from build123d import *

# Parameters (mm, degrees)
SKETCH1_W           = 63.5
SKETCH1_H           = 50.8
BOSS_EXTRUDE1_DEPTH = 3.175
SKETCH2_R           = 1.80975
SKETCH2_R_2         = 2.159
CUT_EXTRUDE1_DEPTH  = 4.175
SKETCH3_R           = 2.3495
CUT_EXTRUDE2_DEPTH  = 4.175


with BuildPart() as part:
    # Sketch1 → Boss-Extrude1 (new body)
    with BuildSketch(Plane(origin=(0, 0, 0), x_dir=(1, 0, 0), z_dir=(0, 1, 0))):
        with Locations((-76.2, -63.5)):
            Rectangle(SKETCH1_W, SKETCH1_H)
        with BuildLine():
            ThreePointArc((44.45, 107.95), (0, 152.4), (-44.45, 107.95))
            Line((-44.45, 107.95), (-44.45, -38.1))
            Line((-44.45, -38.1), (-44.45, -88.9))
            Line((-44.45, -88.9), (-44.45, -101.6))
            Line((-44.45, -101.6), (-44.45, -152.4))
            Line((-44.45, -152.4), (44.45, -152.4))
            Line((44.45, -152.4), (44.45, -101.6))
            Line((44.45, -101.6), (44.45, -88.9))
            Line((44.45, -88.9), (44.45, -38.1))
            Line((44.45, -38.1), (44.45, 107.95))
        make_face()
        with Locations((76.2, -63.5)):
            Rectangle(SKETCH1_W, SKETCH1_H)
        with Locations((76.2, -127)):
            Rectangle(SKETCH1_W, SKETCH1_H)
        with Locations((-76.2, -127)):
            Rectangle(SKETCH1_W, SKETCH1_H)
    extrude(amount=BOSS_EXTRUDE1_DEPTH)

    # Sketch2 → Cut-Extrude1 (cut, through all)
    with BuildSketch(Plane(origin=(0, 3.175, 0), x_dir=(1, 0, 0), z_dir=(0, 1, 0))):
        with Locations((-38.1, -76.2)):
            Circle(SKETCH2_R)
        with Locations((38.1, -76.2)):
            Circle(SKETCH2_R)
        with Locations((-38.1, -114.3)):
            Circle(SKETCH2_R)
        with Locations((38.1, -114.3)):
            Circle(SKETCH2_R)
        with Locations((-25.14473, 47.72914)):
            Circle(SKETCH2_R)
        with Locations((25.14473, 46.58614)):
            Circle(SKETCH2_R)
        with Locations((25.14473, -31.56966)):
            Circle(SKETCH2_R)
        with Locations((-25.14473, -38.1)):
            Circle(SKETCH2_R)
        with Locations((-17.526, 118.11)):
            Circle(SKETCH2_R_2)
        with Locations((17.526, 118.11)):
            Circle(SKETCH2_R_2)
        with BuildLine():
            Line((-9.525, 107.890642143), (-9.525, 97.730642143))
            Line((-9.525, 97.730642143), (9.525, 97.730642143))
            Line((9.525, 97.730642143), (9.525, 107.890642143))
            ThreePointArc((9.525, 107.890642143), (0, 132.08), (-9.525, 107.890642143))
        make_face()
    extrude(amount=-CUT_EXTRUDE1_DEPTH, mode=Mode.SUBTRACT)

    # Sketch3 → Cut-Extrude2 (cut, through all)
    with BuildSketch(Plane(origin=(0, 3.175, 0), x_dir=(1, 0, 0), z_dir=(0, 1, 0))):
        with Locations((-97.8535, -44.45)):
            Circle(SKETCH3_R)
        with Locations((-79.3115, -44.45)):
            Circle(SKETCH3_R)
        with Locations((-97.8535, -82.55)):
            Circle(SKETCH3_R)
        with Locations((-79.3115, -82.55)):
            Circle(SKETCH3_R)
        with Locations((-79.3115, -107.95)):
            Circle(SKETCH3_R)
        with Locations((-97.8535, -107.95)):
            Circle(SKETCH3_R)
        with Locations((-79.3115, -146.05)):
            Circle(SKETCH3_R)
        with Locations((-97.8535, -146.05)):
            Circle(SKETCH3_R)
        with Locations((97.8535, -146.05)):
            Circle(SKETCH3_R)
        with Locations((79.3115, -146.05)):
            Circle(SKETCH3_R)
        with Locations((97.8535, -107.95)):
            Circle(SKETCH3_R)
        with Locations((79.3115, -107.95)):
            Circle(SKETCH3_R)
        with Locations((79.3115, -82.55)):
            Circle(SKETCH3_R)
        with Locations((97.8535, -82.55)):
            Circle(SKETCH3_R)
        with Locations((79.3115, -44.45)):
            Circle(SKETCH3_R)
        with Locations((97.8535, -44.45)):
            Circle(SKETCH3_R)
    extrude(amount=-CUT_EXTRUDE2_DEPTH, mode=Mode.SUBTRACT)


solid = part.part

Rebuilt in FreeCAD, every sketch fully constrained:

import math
import FreeCAD as App
import Part
import Sketcher
from FreeCAD import Vector
Q = App.Units.Quantity

doc = App.newDocument("Part")
body = doc.addObject("PartDesign::Body", "Body")

sketch1 = body.newObject("Sketcher::SketchObject", "Sketch")
sketch1.AttachmentSupport = (doc.getObject("XZ_Plane"), [""])
sketch1.MapMode = "FlatFace"
sketch1.addGeometry(Part.LineSegment(Vector(-108, 38, 0), Vector(-108, 89, 0)), False)
sketch1.addGeometry(Part.LineSegment(Vector(-108, 89, 0), Vector(-44, 89, 0)), False)
sketch1.addGeometry(Part.LineSegment(Vector(-44, 89, 0), Vector(-44, 102, 0)), False)
sketch1.addGeometry(Part.LineSegment(Vector(-44, 102, 0), Vector(-108, 102, 0)), False)
sketch1.addGeometry(Part.LineSegment(Vector(-108, 102, 0), Vector(-108, 152, 0)), False)
sketch1.addGeometry(Part.LineSegment(Vector(-108, 152, 0), Vector(108, 152, 0)), False)
sketch1.addGeometry(Part.LineSegment(Vector(108, 152, 0), Vector(108, 102, 0)), False)
sketch1.addGeometry(Part.LineSegment(Vector(108, 102, 0), Vector(44, 102, 0)), False)
sketch1.addGeometry(Part.LineSegment(Vector(44, 102, 0), Vector(44, 89, 0)), False)
sketch1.addGeometry(Part.LineSegment(Vector(44, 89, 0), Vector(108, 89, 0)), False)
sketch1.addGeometry(Part.LineSegment(Vector(108, 89, 0), Vector(108, 38, 0)), False)
sketch1.addGeometry(Part.LineSegment(Vector(108, 38, 0), Vector(44, 38, 0)), False)
sketch1.addGeometry(Part.LineSegment(Vector(44, 38, 0), Vector(44, -108, 0)), False)
sketch1.addGeometry(Part.ArcOfCircle(Part.Circle(Vector(0, -108, 0), Vector(0, 0, 1), 44), math.radians(180), math.radians(360)), False)
sketch1.addGeometry(Part.LineSegment(Vector(-44, -108, 0), Vector(-44, 38, 0)), False)
sketch1.addGeometry(Part.LineSegment(Vector(-44, 38, 0), Vector(-108, 38, 0)), False)
sketch1.addConstraint(Sketcher.Constraint("Coincident", 0, 2, 1, 1))
sketch1.addConstraint(Sketcher.Constraint("Coincident", 1, 2, 2, 1))
sketch1.addConstraint(Sketcher.Constraint("Coincident", 2, 2, 3, 1))
sketch1.addConstraint(Sketcher.Constraint("Coincident", 3, 2, 4, 1))
sketch1.addConstraint(Sketcher.Constraint("Coincident", 4, 2, 5, 1))
sketch1.addConstraint(Sketcher.Constraint("Coincident", 5, 2, 6, 1))
sketch1.addConstraint(Sketcher.Constraint("Coincident", 6, 2, 7, 1))
sketch1.addConstraint(Sketcher.Constraint("Coincident", 7, 2, 8, 1))
sketch1.addConstraint(Sketcher.Constraint("Coincident", 8, 2, 9, 1))
sketch1.addConstraint(Sketcher.Constraint("Coincident", 9, 2, 10, 1))
sketch1.addConstraint(Sketcher.Constraint("Coincident", 10, 2, 11, 1))
sketch1.addConstraint(Sketcher.Constraint("Coincident", 11, 2, 12, 1))
sketch1.addConstraint(Sketcher.Constraint("Tangent", 12, 2, 13, 2))
sketch1.addConstraint(Sketcher.Constraint("Tangent", 13, 1, 14, 1))
sketch1.addConstraint(Sketcher.Constraint("Coincident", 14, 2, 15, 1))
sketch1.addConstraint(Sketcher.Constraint("Coincident", 15, 2, 0, 1))
sketch1.addConstraint(Sketcher.Constraint("Vertical", 0))
sketch1.addConstraint(Sketcher.Constraint("Horizontal", 1))
sketch1.addConstraint(Sketcher.Constraint("Vertical", 2))
sketch1.addConstraint(Sketcher.Constraint("Horizontal", 3))
sketch1.addConstraint(Sketcher.Constraint("Vertical", 4))
sketch1.addConstraint(Sketcher.Constraint("Horizontal", 5))
sketch1.addConstraint(Sketcher.Constraint("Vertical", 6))
sketch1.addConstraint(Sketcher.Constraint("Horizontal", 7))
sketch1.addConstraint(Sketcher.Constraint("Vertical", 8))
sketch1.addConstraint(Sketcher.Constraint("Horizontal", 9))
sketch1.addConstraint(Sketcher.Constraint("Vertical", 10))
sketch1.addConstraint(Sketcher.Constraint("Horizontal", 11))
sketch1.addConstraint(Sketcher.Constraint("Vertical", 12))
sketch1.addConstraint(Sketcher.Constraint("Vertical", 14))
sketch1.addConstraint(Sketcher.Constraint("Horizontal", 15))
sketch1.addConstraint(Sketcher.Constraint("Symmetric", 3, 2, 6, 2, -2))
sketch1.addConstraint(Sketcher.Constraint("Symmetric", 1, 2, 8, 2, -2))
sketch1.addConstraint(Sketcher.Constraint("Symmetric", 11, 2, 14, 2, -2))
sketch1.addConstraint(Sketcher.Constraint("Vertical", 0, 2, 3, 2))
sketch1.addConstraint(Sketcher.Constraint("Vertical", 6, 2, 9, 2))
sketch1.addConstraint(Sketcher.Constraint("Vertical", 8, 2, 11, 2))
sketch1.addConstraint(Sketcher.Constraint("Equal", 0, 4))
sketch1.addConstraint(Sketcher.Constraint("DistanceY", 0, 1, 0, 2, Q("2 in")))
sketch1.addConstraint(Sketcher.Constraint("Radius", 13, Q("1.75 in")))
sketch1.addConstraint(Sketcher.Constraint("DistanceX", 1, 1, 1, 2, Q("2.5 in")))
sketch1.addConstraint(Sketcher.Constraint("DistanceY", 2, 1, 2, 2, Q("0.5 in")))
sketch1.addConstraint(Sketcher.Constraint("DistanceY", -1, 1, 2, 2, Q("4 in")))
sketch1.addConstraint(Sketcher.Constraint("DistanceY", 12, 2, 12, 1, Q("5.75 in")))
pad1 = body.newObject("PartDesign::Pad", "Pad")
pad1.Profile = sketch1
pad1.Length = Q("0.125 in")
pad1.Reversed = True

sketch2 = body.newObject("Sketcher::SketchObject", "Sketch001")
sketch2.AttachmentSupport = (doc.getObject("XZ_Plane"), [""])
sketch2.MapMode = "FlatFace"
sketch2.AttachmentOffset = App.Placement(Vector(0, 0, -0.125 * 25.4), App.Rotation())
sketch2.addGeometry(Part.Circle(Vector(-38.1, 76.2, 0), Vector(0, 0, 1), 1.8), False)
sketch2.addGeometry(Part.Circle(Vector(38.1, 76.2, 0), Vector(0, 0, 1), 1.8), False)
sketch2.addGeometry(Part.Circle(Vector(-38.1, 114.3, 0), Vector(0, 0, 1), 1.8), False)
sketch2.addGeometry(Part.Circle(Vector(38.1, 114.3, 0), Vector(0, 0, 1), 1.8), False)
sketch2.addGeometry(Part.Circle(Vector(-25.1, -47.7, 0), Vector(0, 0, 1), 1.8), False)
sketch2.addGeometry(Part.Circle(Vector(25.1, -46.6, 0), Vector(0, 0, 1), 1.8), False)
sketch2.addGeometry(Part.Circle(Vector(25.1, 31.6, 0), Vector(0, 0, 1), 1.8), False)
sketch2.addGeometry(Part.Circle(Vector(-25.1, 38.1, 0), Vector(0, 0, 1), 1.8), False)
sketch2.addGeometry(Part.Circle(Vector(-17.5, -118.1, 0), Vector(0, 0, 1), 2.2), False)
sketch2.addGeometry(Part.Circle(Vector(17.5, -118.1, 0), Vector(0, 0, 1), 2.2), False)
sketch2.addGeometry(Part.LineSegment(Vector(-9.5, -107.9, 0), Vector(-9.5, -97.7, 0)), False)
sketch2.addGeometry(Part.LineSegment(Vector(-9.5, -97.7, 0), Vector(9.5, -97.7, 0)), False)
sketch2.addGeometry(Part.LineSegment(Vector(9.5, -97.7, 0), Vector(9.5, -107.9, 0)), False)
sketch2.addGeometry(Part.ArcOfCircle(Part.Circle(Vector(0, -118.1, 0), Vector(0, 0, 1), 14), math.radians(133), math.radians(407)), False)
sketch2.addConstraint(Sketcher.Constraint("Coincident", 10, 2, 11, 1))
sketch2.addConstraint(Sketcher.Constraint("Coincident", 11, 2, 12, 1))
sketch2.addConstraint(Sketcher.Constraint("Coincident", 12, 2, 13, 2))
sketch2.addConstraint(Sketcher.Constraint("Coincident", 13, 1, 10, 1))
sketch2.addConstraint(Sketcher.Constraint("Vertical", 10))
sketch2.addConstraint(Sketcher.Constraint("Horizontal", 11))
sketch2.addConstraint(Sketcher.Constraint("Vertical", 12))
sketch2.addConstraint(Sketcher.Constraint("Equal", 0, 1))
sketch2.addConstraint(Sketcher.Constraint("Equal", 1, 2))
sketch2.addConstraint(Sketcher.Constraint("Equal", 2, 3))
sketch2.addConstraint(Sketcher.Constraint("Equal", 3, 4))
sketch2.addConstraint(Sketcher.Constraint("Equal", 4, 5))
sketch2.addConstraint(Sketcher.Constraint("Equal", 5, 6))
sketch2.addConstraint(Sketcher.Constraint("Equal", 6, 7))
sketch2.addConstraint(Sketcher.Constraint("Equal", 8, 9))
sketch2.addConstraint(Sketcher.Constraint("Symmetric", 0, 3, 1, 3, -2))
sketch2.addConstraint(Sketcher.Constraint("Symmetric", 2, 3, 3, 3, -2))
sketch2.addConstraint(Sketcher.Constraint("Symmetric", 8, 3, 9, 3, -2))
sketch2.addConstraint(Sketcher.Constraint("Symmetric", 12, 2, 13, 1, -2))
sketch2.addConstraint(Sketcher.Constraint("Horizontal", 9, 3, 13, 3))
sketch2.addConstraint(Sketcher.Constraint("Vertical", 0, 3, 2, 3))
sketch2.addConstraint(Sketcher.Constraint("Vertical", 5, 3, 6, 3))
sketch2.addConstraint(Sketcher.Constraint("Vertical", 4, 3, 7, 3))
sketch2.addConstraint(Sketcher.Constraint("Diameter", 8, Q("0.17 in")))
sketch2.addConstraint(Sketcher.Constraint("Radius", 13, Q("0.55 in")))
sketch2.addConstraint(Sketcher.Constraint("DistanceY", 10, 1, 10, 2, Q("0.4 in")))
sketch2.addConstraint(Sketcher.Constraint("DistanceY", -1, 1, 0, 3, Q("3 in")))
sketch2.addConstraint(Sketcher.Constraint("DistanceX", 0, 3, 1, 3, Q("3 in")))
sketch2.addConstraint(Sketcher.Constraint("DistanceY", 7, 3, 2, 3, Q("3 in")))
sketch2.addConstraint(Sketcher.Constraint("Diameter", 0, Q("0.1425 in")))
sketch2.addConstraint(Sketcher.Constraint("DistanceX", 11, 1, 11, 2, Q("0.75 in")))
sketch2.addConstraint(Sketcher.Constraint("DistanceY", -1, 1, 2, 3, Q("4.5 in")))
sketch2.addConstraint(Sketcher.Constraint("DistanceX", 8, 3, -1, 1, Q("0.69 in")))
sketch2.addConstraint(Sketcher.Constraint("DistanceY", 8, 3, -1, 1, Q("4.65 in")))
sketch2.addConstraint(Sketcher.Constraint("DistanceY", 4, 3, 5, 3, Q("0.045 in")))
sketch2.addConstraint(Sketcher.Constraint("DistanceY", 5, 3, 6, 3, Q("3.077 in")))
sketch2.addConstraint(Sketcher.Constraint("DistanceY", 4, 3, -1, 1, Q("1.8791 in")))
sketch2.addConstraint(Sketcher.Constraint("DistanceX", 4, 3, 5, 3, Q("1.9799 in")))
sketch2.addConstraint(Sketcher.Constraint("DistanceX", 4, 3, -1, 1, Q("25.14473 mm")))
pocket1 = body.newObject("PartDesign::Pocket", "Pocket")
pocket1.Profile = sketch2
pocket1.Type = "ThroughAll"
pocket1.Reversed = True

sketch3 = body.newObject("Sketcher::SketchObject", "Sketch002")
sketch3.AttachmentSupport = (doc.getObject("XZ_Plane"), [""])
sketch3.MapMode = "FlatFace"
sketch3.AttachmentOffset = App.Placement(Vector(0, 0, -0.125 * 25.4), App.Rotation())
sketch3.addGeometry(Part.Circle(Vector(-97.9, 44.5, 0), Vector(0, 0, 1), 2.3), False)
sketch3.addGeometry(Part.Circle(Vector(-79.3, 44.5, 0), Vector(0, 0, 1), 2.3), False)
sketch3.addGeometry(Part.Circle(Vector(-97.9, 82.5, 0), Vector(0, 0, 1), 2.3), False)
sketch3.addGeometry(Part.Circle(Vector(-79.3, 82.5, 0), Vector(0, 0, 1), 2.3), False)
sketch3.addGeometry(Part.Circle(Vector(-79.3, 108, 0), Vector(0, 0, 1), 2.3), False)
sketch3.addGeometry(Part.Circle(Vector(-97.9, 108, 0), Vector(0, 0, 1), 2.3), False)
sketch3.addGeometry(Part.Circle(Vector(-79.3, 146.1, 0), Vector(0, 0, 1), 2.3), False)
sketch3.addGeometry(Part.Circle(Vector(-97.9, 146.1, 0), Vector(0, 0, 1), 2.3), False)
sketch3.addGeometry(Part.Circle(Vector(97.9, 146.1, 0), Vector(0, 0, 1), 2.3), False)
sketch3.addGeometry(Part.Circle(Vector(79.3, 146.1, 0), Vector(0, 0, 1), 2.3), False)
sketch3.addGeometry(Part.Circle(Vector(97.9, 108, 0), Vector(0, 0, 1), 2.3), False)
sketch3.addGeometry(Part.Circle(Vector(79.3, 108, 0), Vector(0, 0, 1), 2.3), False)
sketch3.addGeometry(Part.Circle(Vector(79.3, 82.5, 0), Vector(0, 0, 1), 2.3), False)
sketch3.addGeometry(Part.Circle(Vector(97.9, 82.5, 0), Vector(0, 0, 1), 2.3), False)
sketch3.addGeometry(Part.Circle(Vector(79.3, 44.5, 0), Vector(0, 0, 1), 2.3), False)
sketch3.addGeometry(Part.Circle(Vector(97.9, 44.5, 0), Vector(0, 0, 1), 2.3), False)
sketch3.addConstraint(Sketcher.Constraint("Equal", 0, 1))
sketch3.addConstraint(Sketcher.Constraint("Equal", 1, 2))
sketch3.addConstraint(Sketcher.Constraint("Equal", 2, 3))
sketch3.addConstraint(Sketcher.Constraint("Equal", 3, 4))
sketch3.addConstraint(Sketcher.Constraint("Equal", 4, 5))
sketch3.addConstraint(Sketcher.Constraint("Equal", 5, 6))
sketch3.addConstraint(Sketcher.Constraint("Equal", 6, 7))
sketch3.addConstraint(Sketcher.Constraint("Equal", 7, 8))
sketch3.addConstraint(Sketcher.Constraint("Equal", 8, 9))
sketch3.addConstraint(Sketcher.Constraint("Equal", 9, 10))
sketch3.addConstraint(Sketcher.Constraint("Equal", 10, 11))
sketch3.addConstraint(Sketcher.Constraint("Equal", 11, 12))
sketch3.addConstraint(Sketcher.Constraint("Equal", 12, 13))
sketch3.addConstraint(Sketcher.Constraint("Equal", 13, 14))
sketch3.addConstraint(Sketcher.Constraint("Equal", 14, 15))
sketch3.addConstraint(Sketcher.Constraint("Symmetric", 7, 3, 8, 3, -2))
sketch3.addConstraint(Sketcher.Constraint("Symmetric", 6, 3, 9, 3, -2))
sketch3.addConstraint(Sketcher.Constraint("Symmetric", 5, 3, 10, 3, -2))
sketch3.addConstraint(Sketcher.Constraint("Symmetric", 4, 3, 11, 3, -2))
sketch3.addConstraint(Sketcher.Constraint("Symmetric", 3, 3, 12, 3, -2))
sketch3.addConstraint(Sketcher.Constraint("Symmetric", 2, 3, 13, 3, -2))
sketch3.addConstraint(Sketcher.Constraint("Symmetric", 1, 3, 14, 3, -2))
sketch3.addConstraint(Sketcher.Constraint("Symmetric", 0, 3, 15, 3, -2))
sketch3.addConstraint(Sketcher.Constraint("Horizontal", 0, 3, 1, 3))
sketch3.addConstraint(Sketcher.Constraint("Horizontal", 2, 3, 3, 3))
sketch3.addConstraint(Sketcher.Constraint("Horizontal", 4, 3, 5, 3))
sketch3.addConstraint(Sketcher.Constraint("Horizontal", 6, 3, 7, 3))
sketch3.addConstraint(Sketcher.Constraint("Vertical", 0, 3, 2, 3))
sketch3.addConstraint(Sketcher.Constraint("Vertical", 1, 3, 3, 3))
sketch3.addConstraint(Sketcher.Constraint("Vertical", 3, 3, 4, 3))
sketch3.addConstraint(Sketcher.Constraint("Vertical", 2, 3, 5, 3))
sketch3.addConstraint(Sketcher.Constraint("Vertical", 4, 3, 6, 3))
sketch3.addConstraint(Sketcher.Constraint("Vertical", 5, 3, 7, 3))
sketch3.addConstraint(Sketcher.Constraint("Diameter", 0, Q("0.185 in")))
sketch3.addConstraint(Sketcher.Constraint("DistanceY", 3, 3, 4, 3, Q("1 in")))
sketch3.addConstraint(Sketcher.Constraint("DistanceY", 1, 3, 6, 3, Q("4 in")))
sketch3.addConstraint(Sketcher.Constraint("DistanceY", 0, 3, 2, 3, Q("1.5 in")))
sketch3.addConstraint(Sketcher.Constraint("DistanceY", -1, 1, 0, 3, Q("1.75 in")))
sketch3.addConstraint(Sketcher.Constraint("DistanceX", 0, 3, 1, 3, Q("0.73 in")))
sketch3.addConstraint(Sketcher.Constraint("DistanceX", 6, 3, 8, 3, Q("6.975 in")))
pocket2 = body.newObject("PartDesign::Pocket", "Pocket001")
pocket2.Profile = sketch3
pocket2.Type = "ThroughAll"
pocket2.Reversed = True

doc.recompute()
